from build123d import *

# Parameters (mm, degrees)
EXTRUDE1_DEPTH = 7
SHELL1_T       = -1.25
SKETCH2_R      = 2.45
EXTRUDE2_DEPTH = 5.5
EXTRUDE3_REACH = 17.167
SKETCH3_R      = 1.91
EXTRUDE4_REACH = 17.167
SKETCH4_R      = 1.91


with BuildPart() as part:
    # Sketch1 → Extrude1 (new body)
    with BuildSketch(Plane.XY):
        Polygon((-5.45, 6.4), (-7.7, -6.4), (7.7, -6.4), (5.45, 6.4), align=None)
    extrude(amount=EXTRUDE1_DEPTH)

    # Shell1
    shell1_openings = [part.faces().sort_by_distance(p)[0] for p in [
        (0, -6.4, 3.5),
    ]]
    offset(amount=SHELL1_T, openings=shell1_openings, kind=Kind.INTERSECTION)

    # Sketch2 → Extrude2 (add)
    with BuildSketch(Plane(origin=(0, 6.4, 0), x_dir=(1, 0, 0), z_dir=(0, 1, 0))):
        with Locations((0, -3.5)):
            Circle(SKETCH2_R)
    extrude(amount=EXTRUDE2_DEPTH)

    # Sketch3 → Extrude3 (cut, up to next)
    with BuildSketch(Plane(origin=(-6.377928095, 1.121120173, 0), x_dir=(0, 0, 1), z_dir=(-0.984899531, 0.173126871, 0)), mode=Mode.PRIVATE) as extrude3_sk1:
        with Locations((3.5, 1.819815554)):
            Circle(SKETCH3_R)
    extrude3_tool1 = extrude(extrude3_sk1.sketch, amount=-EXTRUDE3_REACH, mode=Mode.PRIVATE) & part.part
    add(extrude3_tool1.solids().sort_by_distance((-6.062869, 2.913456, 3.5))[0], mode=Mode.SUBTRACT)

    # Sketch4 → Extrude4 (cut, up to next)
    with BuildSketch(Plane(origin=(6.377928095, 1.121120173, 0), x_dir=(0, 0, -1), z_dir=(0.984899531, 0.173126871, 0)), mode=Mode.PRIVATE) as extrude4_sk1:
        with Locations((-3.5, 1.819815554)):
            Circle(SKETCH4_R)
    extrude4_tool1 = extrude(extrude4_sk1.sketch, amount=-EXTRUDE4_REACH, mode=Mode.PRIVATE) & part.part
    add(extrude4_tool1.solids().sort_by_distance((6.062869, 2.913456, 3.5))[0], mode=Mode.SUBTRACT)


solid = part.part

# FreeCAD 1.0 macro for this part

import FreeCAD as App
import Part
import Sketcher
from FreeCAD import Vector
Q = App.Units.Quantity


def faces_at(feature, points):
    """Names of the faces that lie closest to the given points."""
    faces = feature.Shape.Faces
    near = lambda p: min(range(len(faces)), key=lambda i: faces[i].distToShape(Part.Vertex(*p))[0])
    return sorted({f"Face{near(p) + 1}" for p in points})


def add_polygon(sketch, points):
    """Adds a closed chain of lines whose ends are joined by coincident constraints."""
    first, n = sketch.GeometryCount, len(points)
    for a, b in zip(points, points[1:] + points[:1]):
        sketch.addGeometry(Part.LineSegment(App.Vector(*a, 0), App.Vector(*b, 0)), False)
    for i in range(n):
        sketch.addConstraint(Sketcher.Constraint("Coincident", first + i, 2, first + (i + 1) % n, 1))

doc = App.newDocument("Part")
body = doc.addObject("PartDesign::Body", "Body")

sketch1 = body.newObject("Sketcher::SketchObject", "Sketch")
sketch1.AttachmentSupport = (doc.getObject("XY_Plane"), [""])
sketch1.MapMode = "FlatFace"
add_polygon(sketch1, [(-5, 6), (-8, -6), (8, -6), (5, 6)])
sketch1.addConstraint([
    Sketcher.Constraint("Horizontal", 1),
    Sketcher.Constraint("Horizontal", 3),
    Sketcher.Constraint("Equal", 0, 2),
    Sketcher.Constraint("DistanceX", 1, 1, 1, 2, Q("15.4 mm")),
    Sketcher.Constraint("DistanceX", 3, 2, 3, 1, Q("10.9 mm")),
    Sketcher.Constraint("DistanceX", 0, 2, -1, 1, Q("7.7 mm")),
    Sketcher.Constraint("DistanceY", 0, 2, -1, 1, Q("6.4 mm")),
    Sketcher.Constraint("DistanceY", -1, 1, 2, 2, Q("6.4 mm")),
])
pad1 = body.newObject("PartDesign::Pad", "Pad")
pad1.Profile = sketch1
pad1.Length = 7
doc.recompute()

thickness = body.newObject("PartDesign::Thickness", "Thickness")
thickness.Base = (pad1, faces_at(pad1, [(0, -6.4, 3.5)]))
thickness.Value = 1.25
thickness.Reversed = True
thickness.Join = "Intersection"

sketch2 = body.newObject("Sketcher::SketchObject", "Sketch001")
sketch2.AttachmentSupport = (doc.getObject("XZ_Plane"), [""])
sketch2.MapMode = "FlatFace"
sketch2.AttachmentOffset = App.Placement(Vector(0, 0, -6.4), App.Rotation())
sketch2.addGeometry(Part.Circle(Vector(0, 3.5, 0), Vector(0, 0, 1), 2.5), False)
sketch2.addConstraint([
    Sketcher.Constraint("PointOnObject", 0, 3, -2),
    Sketcher.Constraint("Diameter", 0, Q("4.9 mm")),
    Sketcher.Constraint("DistanceY", -1, 1, 0, 3, Q("3.5 mm")),
])
pad2 = body.newObject("PartDesign::Pad", "Pad001")
pad2.Profile = sketch2
pad2.Length = 5.5
pad2.Reversed = True

sketch3 = body.newObject("Sketcher::SketchObject", "Sketch002")
sketch3.Placement = App.Placement(Vector(-6.377928, 1.12112, 0), App.Rotation(Vector(0, 0, 1), Vector(0.173126871, 0.984899531, 0), Vector(-0.984899531, 0.173126871, 0), "ZXY"))
sketch3.addGeometry(Part.Circle(Vector(3.5, 1.8, 0), Vector(0, 0, 1), 1.9), False)
sketch3.addConstraint([
    Sketcher.Constraint("Diameter", 0, Q("3.82 mm")),
    Sketcher.Constraint("DistanceX", -1, 1, 0, 3, Q("3.5 mm")),
    Sketcher.Constraint("DistanceY", -1, 1, 0, 3, Q("1.819816 mm")),
])
pocket1 = body.newObject("PartDesign::Pocket", "Pocket")
pocket1.Profile = sketch3
pocket1.Type = "UpToFirst"

sketch4 = body.newObject("Sketcher::SketchObject", "Sketch003")
sketch4.Placement = App.Placement(Vector(6.377928, 1.12112, 0), App.Rotation(Vector(0, 0, -1), Vector(-0.173126871, 0.984899531, 0), Vector(0.984899531, 0.173126871, 0), "ZXY"))
sketch4.addGeometry(Part.Circle(Vector(-3.5, 1.8, 0), Vector(0, 0, 1), 1.9), False)
sketch4.addConstraint([
    Sketcher.Constraint("Diameter", 0, Q("3.82 mm")),
    Sketcher.Constraint("DistanceX", 0, 3, -1, 1, Q("3.5 mm")),
    Sketcher.Constraint("DistanceY", -1, 1, 0, 3, Q("1.819816 mm")),
])
pocket2 = body.newObject("PartDesign::Pocket", "Pocket001")
pocket2.Profile = sketch4
pocket2.Type = "UpToFirst"

doc.recompute()
